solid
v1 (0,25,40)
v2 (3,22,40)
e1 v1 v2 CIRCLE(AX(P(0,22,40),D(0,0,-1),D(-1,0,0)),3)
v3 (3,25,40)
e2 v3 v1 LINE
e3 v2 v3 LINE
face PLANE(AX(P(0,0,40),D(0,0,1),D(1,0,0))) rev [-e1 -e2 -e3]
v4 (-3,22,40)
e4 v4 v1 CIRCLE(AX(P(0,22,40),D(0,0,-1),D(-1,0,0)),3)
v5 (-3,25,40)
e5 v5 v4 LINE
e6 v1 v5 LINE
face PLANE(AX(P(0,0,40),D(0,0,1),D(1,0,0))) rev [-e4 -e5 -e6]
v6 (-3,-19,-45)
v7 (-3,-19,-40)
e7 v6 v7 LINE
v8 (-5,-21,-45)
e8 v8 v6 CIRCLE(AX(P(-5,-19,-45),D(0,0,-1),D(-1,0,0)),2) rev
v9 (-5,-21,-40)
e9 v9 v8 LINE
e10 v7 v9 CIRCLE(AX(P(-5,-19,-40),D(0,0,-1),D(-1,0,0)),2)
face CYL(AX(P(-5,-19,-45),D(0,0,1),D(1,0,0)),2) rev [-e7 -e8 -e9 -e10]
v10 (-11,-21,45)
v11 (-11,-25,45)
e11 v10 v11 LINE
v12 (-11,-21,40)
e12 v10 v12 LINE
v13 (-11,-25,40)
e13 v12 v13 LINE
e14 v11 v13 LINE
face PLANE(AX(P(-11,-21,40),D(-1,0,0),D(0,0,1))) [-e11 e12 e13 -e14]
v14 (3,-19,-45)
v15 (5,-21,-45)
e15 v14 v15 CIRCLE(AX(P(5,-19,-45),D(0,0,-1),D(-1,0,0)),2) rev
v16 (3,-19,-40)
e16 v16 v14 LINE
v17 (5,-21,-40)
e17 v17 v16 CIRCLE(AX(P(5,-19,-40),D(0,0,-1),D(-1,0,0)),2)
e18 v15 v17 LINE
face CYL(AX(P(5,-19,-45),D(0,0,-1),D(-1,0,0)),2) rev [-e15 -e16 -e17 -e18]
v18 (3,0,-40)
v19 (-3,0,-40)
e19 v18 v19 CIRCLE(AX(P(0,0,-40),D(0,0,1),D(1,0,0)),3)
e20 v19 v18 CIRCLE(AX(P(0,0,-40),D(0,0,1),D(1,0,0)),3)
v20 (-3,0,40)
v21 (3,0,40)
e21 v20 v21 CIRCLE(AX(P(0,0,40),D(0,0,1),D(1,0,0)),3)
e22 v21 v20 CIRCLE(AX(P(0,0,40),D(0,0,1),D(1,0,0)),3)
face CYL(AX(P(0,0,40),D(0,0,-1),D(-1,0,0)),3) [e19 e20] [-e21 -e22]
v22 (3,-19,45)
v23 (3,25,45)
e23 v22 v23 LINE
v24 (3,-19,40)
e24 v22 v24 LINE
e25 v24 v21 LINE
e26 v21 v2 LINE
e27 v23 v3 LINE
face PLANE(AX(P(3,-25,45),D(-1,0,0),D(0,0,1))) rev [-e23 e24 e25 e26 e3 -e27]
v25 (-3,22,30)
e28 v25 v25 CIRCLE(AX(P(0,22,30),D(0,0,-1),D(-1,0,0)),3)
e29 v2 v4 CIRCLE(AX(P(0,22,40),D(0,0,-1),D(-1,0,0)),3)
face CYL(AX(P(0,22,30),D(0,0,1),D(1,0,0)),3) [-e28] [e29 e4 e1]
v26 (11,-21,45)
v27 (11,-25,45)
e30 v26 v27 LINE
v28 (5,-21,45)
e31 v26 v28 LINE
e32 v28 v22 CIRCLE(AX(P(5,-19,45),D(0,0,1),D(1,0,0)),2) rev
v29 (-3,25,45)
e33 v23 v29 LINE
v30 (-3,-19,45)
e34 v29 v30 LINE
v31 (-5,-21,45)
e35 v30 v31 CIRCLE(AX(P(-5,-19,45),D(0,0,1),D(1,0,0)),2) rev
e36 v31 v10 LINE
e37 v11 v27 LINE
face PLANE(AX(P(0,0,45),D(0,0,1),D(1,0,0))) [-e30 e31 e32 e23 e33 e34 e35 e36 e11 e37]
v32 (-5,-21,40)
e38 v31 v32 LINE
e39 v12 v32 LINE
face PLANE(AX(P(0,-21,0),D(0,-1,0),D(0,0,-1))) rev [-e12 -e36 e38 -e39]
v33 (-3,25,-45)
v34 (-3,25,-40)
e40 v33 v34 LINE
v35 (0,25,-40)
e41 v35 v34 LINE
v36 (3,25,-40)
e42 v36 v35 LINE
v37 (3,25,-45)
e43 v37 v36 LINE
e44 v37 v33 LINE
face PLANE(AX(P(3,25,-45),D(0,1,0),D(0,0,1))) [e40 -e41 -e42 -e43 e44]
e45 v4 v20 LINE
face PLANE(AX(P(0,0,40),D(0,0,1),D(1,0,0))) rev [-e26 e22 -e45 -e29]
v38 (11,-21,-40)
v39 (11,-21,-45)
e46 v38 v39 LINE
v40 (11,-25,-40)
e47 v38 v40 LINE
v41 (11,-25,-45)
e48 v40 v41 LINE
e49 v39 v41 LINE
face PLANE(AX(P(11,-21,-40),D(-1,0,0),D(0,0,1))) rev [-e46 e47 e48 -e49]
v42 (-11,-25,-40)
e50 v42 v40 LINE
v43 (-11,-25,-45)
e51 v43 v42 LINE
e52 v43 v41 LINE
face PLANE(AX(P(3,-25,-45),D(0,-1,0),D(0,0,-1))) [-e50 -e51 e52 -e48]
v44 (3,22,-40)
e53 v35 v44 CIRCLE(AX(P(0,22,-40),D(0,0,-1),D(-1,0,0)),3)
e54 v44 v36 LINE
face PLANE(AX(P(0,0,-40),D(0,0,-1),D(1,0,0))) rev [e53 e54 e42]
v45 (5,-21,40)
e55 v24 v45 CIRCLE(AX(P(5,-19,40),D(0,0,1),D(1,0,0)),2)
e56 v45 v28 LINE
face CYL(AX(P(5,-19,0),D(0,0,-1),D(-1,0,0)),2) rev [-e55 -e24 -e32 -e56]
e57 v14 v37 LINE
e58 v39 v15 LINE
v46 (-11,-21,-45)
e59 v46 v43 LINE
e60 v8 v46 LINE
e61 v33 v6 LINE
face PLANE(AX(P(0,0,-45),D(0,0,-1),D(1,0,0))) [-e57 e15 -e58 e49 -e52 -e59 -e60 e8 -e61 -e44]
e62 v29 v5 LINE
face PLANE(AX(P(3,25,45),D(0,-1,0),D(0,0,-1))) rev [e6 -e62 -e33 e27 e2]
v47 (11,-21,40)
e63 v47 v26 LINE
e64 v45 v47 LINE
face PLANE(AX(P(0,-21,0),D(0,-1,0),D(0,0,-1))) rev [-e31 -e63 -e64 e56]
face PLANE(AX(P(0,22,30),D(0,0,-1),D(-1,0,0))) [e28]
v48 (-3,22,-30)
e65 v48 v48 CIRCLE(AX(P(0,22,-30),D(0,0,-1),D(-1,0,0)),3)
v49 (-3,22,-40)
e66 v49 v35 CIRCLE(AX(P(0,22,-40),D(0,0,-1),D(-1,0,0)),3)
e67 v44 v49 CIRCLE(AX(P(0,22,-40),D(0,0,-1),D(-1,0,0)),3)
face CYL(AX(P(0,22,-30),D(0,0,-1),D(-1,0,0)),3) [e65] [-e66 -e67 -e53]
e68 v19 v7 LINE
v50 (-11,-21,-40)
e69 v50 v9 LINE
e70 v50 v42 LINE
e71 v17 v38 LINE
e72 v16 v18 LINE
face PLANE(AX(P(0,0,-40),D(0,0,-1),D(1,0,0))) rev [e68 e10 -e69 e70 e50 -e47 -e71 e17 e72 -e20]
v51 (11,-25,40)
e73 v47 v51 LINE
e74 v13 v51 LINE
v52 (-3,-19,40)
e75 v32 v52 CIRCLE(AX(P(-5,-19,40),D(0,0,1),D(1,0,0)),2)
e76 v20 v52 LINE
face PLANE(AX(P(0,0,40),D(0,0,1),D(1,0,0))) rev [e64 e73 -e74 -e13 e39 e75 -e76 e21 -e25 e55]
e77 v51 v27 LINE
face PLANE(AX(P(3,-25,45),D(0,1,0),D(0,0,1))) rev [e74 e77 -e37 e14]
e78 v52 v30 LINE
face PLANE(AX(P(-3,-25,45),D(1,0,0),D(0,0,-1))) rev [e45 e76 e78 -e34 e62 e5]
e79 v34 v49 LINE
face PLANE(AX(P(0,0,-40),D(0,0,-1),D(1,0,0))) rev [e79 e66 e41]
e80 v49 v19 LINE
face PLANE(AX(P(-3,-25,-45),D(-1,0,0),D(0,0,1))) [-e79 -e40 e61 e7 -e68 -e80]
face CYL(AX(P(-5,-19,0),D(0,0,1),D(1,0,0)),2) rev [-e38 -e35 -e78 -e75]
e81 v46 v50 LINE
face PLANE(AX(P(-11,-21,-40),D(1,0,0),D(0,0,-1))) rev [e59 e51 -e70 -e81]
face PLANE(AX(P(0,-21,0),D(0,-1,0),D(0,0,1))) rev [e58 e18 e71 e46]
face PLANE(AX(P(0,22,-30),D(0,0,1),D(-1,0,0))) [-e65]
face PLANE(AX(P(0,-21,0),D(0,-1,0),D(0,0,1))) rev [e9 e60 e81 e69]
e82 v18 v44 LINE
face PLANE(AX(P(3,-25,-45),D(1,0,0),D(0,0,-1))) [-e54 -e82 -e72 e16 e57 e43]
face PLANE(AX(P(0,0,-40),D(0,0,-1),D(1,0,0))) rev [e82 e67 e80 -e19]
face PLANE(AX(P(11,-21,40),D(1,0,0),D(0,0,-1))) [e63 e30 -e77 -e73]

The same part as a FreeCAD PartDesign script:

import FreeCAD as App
import Part
import Sketcher
from FreeCAD import Vector


def edges_at(feature, points):
    """Names of the edges that pass closest to the given points."""
    edges = feature.Shape.Edges
    near = lambda p: min(range(len(edges)), key=lambda i: edges[i].distToShape(Part.Vertex(*p))[0])
    return sorted({f"Edge{near(p) + 1}" for p in points})


def add_polygon(sketch, points):
    """Adds a closed chain of lines whose ends are joined by coincident constraints."""
    first, n = sketch.GeometryCount, len(points)
    for a, b in zip(points, points[1:] + points[:1]):
        sketch.addGeometry(Part.LineSegment(App.Vector(*a, 0), App.Vector(*b, 0)), False)
    for i in range(n):
        sketch.addConstraint(Sketcher.Constraint("Coincident", first + i, 2, first + (i + 1) % n, 1))

doc = App.newDocument("Part")
params = doc.addObject("Spreadsheet::Sheet", "Params")
for row, (alias, value) in enumerate([
    ("sketch1_diameter", "6 mm"),
    ("pad1_length", "80 mm"),
    ("sketch2_width", "6 mm"),
    ("sketch2_height", "50 mm"),
    ("pad2_length", "5 mm"),
    ("sketch3_width", "22 mm"),
    ("sketch3_height", "5 mm"),
    ("pad3_length", "4 mm"),
    ("fillet_radius", "2 mm"),
    ("sketch4_diameter", "6 mm"),
    ("pad4_length", "10 mm"),
    ("fillet2_radius", "2 mm"),
], start=1):
    params.set(f"A{row}", alias)
    params.set(f"B{row}", "=" + value)
    params.setAlias(f"B{row}", alias)

body = doc.addObject("PartDesign::Body", "Body")

sketch1 = doc.addObject("Sketcher::SketchObject", "Sketch")
body.addObject(sketch1)
sketch1.AttachmentSupport = (doc.XY_Plane, [""])
sketch1.MapMode = "FlatFace"
sketch1.addGeometry(Part.Circle(Vector(0, 0, 0), Vector(0, 0, 1), 3), False)
sketch1.addConstraint([
    Sketcher.Constraint("Coincident", 0, 3, -1, 1),
    Sketcher.Constraint("Diameter", 0, 6.0),
])
sketch1.setExpression("Constraints[1]", "Params.sketch1_diameter")
pad1 = doc.addObject("PartDesign::Pad", "Pad")
body.addObject(pad1)
pad1.Profile = sketch1
pad1.setExpression("Length", "Params.pad1_length")
pad1.Midplane = True

sketch2 = doc.addObject("Sketcher::SketchObject", "Sketch001")
body.addObject(sketch2)
sketch2.AttachmentSupport = (doc.XY_Plane, [""])
sketch2.MapMode = "FlatFace"
sketch2.AttachmentOffset = App.Placement(Vector(0, 0, 40), App.Rotation())
add_polygon(sketch2, [(-3, 25), (-3, -25), (3, -25), (3, 25)])
sketch2.addConstraint([
    Sketcher.Constraint("Vertical", 0),
    Sketcher.Constraint("Horizontal", 1),
    Sketcher.Constraint("Vertical", 2),
    Sketcher.Constraint("Horizontal", 3),
    Sketcher.Constraint("Symmetric", 0, 2, 2, 2, -1, 1),
    Sketcher.Constraint("DistanceX", 1, 1, 1, 2, 6.0),
    Sketcher.Constraint("DistanceY", 0, 2, 0, 1, 50.0),
])
sketch2.setExpression("Constraints[9]", "Params.sketch2_width")
sketch2.setExpression("Constraints[10]", "Params.sketch2_height")
pad2 = doc.addObject("PartDesign::Pad", "Pad001")
body.addObject(pad2)
pad2.Profile = sketch2
pad2.setExpression("Length", "Params.pad2_length")

sketch3 = doc.addObject("Sketcher::SketchObject", "Sketch002")
body.addObject(sketch3)
sketch3.AttachmentSupport = (doc.XZ_Plane, [""])
sketch3.MapMode = "FlatFace"
sketch3.AttachmentOffset = App.Placement(Vector(0, 0, 25), App.Rotation())
add_polygon(sketch3, [(-11, 45), (-11, 40), (11, 40), (11, 45)])
sketch3.addConstraint([
    Sketcher.Constraint("Vertical", 0),
    Sketcher.Constraint("Horizontal", 1),
    Sketcher.Constraint("Vertical", 2),
    Sketcher.Constraint("Horizontal", 3),
    Sketcher.Constraint("DistanceX", 1, 1, 1, 2, 22.0),
    Sketcher.Constraint("DistanceY", 0, 2, 0, 1, 5.0),
    Sketcher.Constraint("DistanceX", 0, 2, -1, 1, 11.0),
    Sketcher.Constraint("DistanceY", -1, 1, 0, 2, 40.0),
])
sketch3.setExpression("Constraints[8]", "Params.sketch3_width")
sketch3.setExpression("Constraints[9]", "Params.sketch3_height")
pad3 = doc.addObject("PartDesign::Pad", "Pad002")
body.addObject(pad3)
pad3.Profile = sketch3
pad3.setExpression("Length", "Params.pad3_length")
pad3.Reversed = True
doc.recompute()

fillet = doc.addObject("PartDesign::Fillet", "Fillet")
body.addObject(fillet)
fillet.Base = (pad3, edges_at(pad3, [(-3, -21, 42.5), (3, -21, 42.5)]))
fillet.setExpression("Radius", "Params.fillet_radius")

sketch4 = doc.addObject("Sketcher::SketchObject", "Sketch003")
body.addObject(sketch4)
sketch4.AttachmentSupport = (doc.XY_Plane, [""])
sketch4.MapMode = "FlatFace"
sketch4.AttachmentOffset = App.Placement(Vector(0, 0, 40), App.Rotation())
sketch4.addGeometry(Part.Circle(Vector(0, 22, 0), Vector(0, 0, 1), 3), False)
sketch4.addConstraint([
    Sketcher.Constraint("PointOnObject", 0, 3, -2),
    Sketcher.Constraint("Diameter", 0, 6.0),
    Sketcher.Constraint("DistanceY", -1, 1, 0, 3, 22.0),
])
sketch4.setExpression("Constraints[1]", "Params.sketch4_diameter")
pad4 = doc.addObject("PartDesign::Pad", "Pad003")
body.addObject(pad4)
pad4.Profile = sketch4
pad4.setExpression("Length", "Params.pad4_length")
pad4.Reversed = True
doc.recompute()

mirrored = doc.addObject("PartDesign::Mirrored", "Mirrored")
body.addObject(mirrored)
mirrored.Originals = [pad2, pad3, pad4]
mirrored.MirrorPlane = (doc.XY_Plane, [""])
body.Tip = mirrored
doc.recompute()

fillet2 = doc.addObject("PartDesign::Fillet", "Fillet001")
body.addObject(fillet2)
fillet2.Base = (mirrored, edges_at(mirrored, [(-3, -21, -42.5), (3, -21, -42.5)]))
fillet2.setExpression("Radius", "Params.fillet2_radius")
doc.recompute()

mirrored2 = doc.addObject("PartDesign::Mirrored", "Mirrored001")
body.addObject(mirrored2)
mirrored2.Originals = [pad2]
mirrored2.MirrorPlane = (doc.XY_Plane, [""])
body.Tip = mirrored2

doc.recompute()
